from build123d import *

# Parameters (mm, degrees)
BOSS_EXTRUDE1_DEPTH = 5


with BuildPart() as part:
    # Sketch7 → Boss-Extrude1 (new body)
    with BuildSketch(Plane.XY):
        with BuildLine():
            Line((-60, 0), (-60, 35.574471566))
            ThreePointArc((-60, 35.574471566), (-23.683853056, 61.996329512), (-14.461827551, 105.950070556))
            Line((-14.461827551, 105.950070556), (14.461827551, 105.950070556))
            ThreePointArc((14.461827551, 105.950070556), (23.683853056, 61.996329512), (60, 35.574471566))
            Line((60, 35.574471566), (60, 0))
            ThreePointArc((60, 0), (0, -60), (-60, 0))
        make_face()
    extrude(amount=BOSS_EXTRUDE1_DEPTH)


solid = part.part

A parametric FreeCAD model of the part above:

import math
import FreeCAD as App
import Part
import Sketcher

V = App.Vector
Q = App.Units.Quantity

doc = App.newDocument("Part")
body = doc.addObject("PartDesign::Body", "Body")

sketch1 = body.newObject("Sketcher::SketchObject", "Sketch")
sketch1.AttachmentSupport = (doc.getObject("XY_Plane"), [""])
sketch1.MapMode = "FlatFace"
sketch1.addGeometry(Part.LineSegment(V(-60, 36, 0), V(-60, 0, 0)), False)
sketch1.addGeometry(Part.ArcOfCircle(Part.Circle(V(0, 0, 0), V(0, 0, 1), 60), math.radians(180), math.radians(360)), False)
sketch1.addGeometry(Part.LineSegment(V(60, 0, 0), V(60, 36, 0)), False)
sketch1.addGeometry(Part.ArcOfCircle(Part.Circle(V(76, 96, 0), V(0, 0, 1), 63), math.radians(171), math.radians(255)), False)
sketch1.addGeometry(Part.LineSegment(V(14, 106, 0), V(-14, 106, 0)), False)
sketch1.addGeometry(Part.ArcOfCircle(Part.Circle(V(-76, 96, 0), V(0, 0, 1), 63), math.radians(-75), math.radians(9)), False)
sketch1.addConstraint(Sketcher.Constraint("Tangent", 0, 2, 1, 1))
sketch1.addConstraint(Sketcher.Constraint("Tangent", 1, 2, 2, 1))
sketch1.addConstraint(Sketcher.Constraint("Coincident", 2, 2, 3, 2))
sketch1.addConstraint(Sketcher.Constraint("Coincident", 3, 1, 4, 1))
sketch1.addConstraint(Sketcher.Constraint("Coincident", 4, 2, 5, 2))
sketch1.addConstraint(Sketcher.Constraint("Coincident", 5, 1, 0, 1))
sketch1.addConstraint(Sketcher.Constraint("Vertical", 0))
sketch1.addConstraint(Sketcher.Constraint("Vertical", 2))
sketch1.addConstraint(Sketcher.Constraint("Horizontal", 4))
sketch1.addConstraint(Sketcher.Constraint("Coincident", 1, 3, -1, 1))
sketch1.addConstraint(Sketcher.Constraint("Equal", 3, 5))
sketch1.addConstraint(Sketcher.Constraint("Symmetric", 3, 3, 5, 3, -2))
sketch1.addConstraint(Sketcher.Constraint("Radius", 1, Q("60 mm")))
sketch1.addConstraint(Sketcher.Constraint("Radius", 3, Q("62.5 mm")))
sketch1.addConstraint(Sketcher.Constraint("DistanceY", 3, 3, 3, 1, Q("10 mm")))
sketch1.addConstraint(Sketcher.Constraint("DistanceY", 0, 2, 0, 1, Q("35.574472 mm")))
sketch1.addConstraint(Sketcher.Constraint("DistanceY", 2, 2, 3, 3, Q("60.375599 mm")))
pad1 = body.newObject("PartDesign::Pad", "Pad")
pad1.Profile = sketch1
pad1.Length = 5

doc.recompute()
